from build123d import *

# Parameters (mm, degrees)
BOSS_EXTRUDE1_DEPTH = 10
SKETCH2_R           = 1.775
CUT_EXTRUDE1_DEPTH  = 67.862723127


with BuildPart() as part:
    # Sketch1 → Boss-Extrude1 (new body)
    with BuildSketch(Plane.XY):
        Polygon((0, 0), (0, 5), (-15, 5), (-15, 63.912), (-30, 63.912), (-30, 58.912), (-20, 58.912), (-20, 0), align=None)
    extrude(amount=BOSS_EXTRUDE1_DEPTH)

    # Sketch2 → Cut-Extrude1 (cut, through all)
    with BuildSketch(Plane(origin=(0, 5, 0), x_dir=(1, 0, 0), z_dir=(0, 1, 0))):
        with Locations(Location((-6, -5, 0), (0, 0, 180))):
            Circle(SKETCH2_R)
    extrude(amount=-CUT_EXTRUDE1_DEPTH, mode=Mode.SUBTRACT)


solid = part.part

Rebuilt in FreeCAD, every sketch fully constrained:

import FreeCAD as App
import Part
import Sketcher

V = App.Vector
Q = App.Units.Quantity

doc = App.newDocument("Part")
body = doc.addObject("PartDesign::Body", "Body")

# Sketch on XY plane
sketch1 = body.newObject("Sketcher::SketchObject", "Sketch")
sketch1.AttachmentSupport = (doc.getObject("XY_Plane"), [""])
sketch1.MapMode = "FlatFace"
sketch1.addGeometry(Part.LineSegment(V(0, 0, 0), V(0, 5, 0)), False)
sketch1.addGeometry(Part.LineSegment(V(0, 5, 0), V(-15, 5, 0)), False)
sketch1.addGeometry(Part.LineSegment(V(-15, 5, 0), V(-15, 63.912, 0)), False)
sketch1.addGeometry(Part.LineSegment(V(-15, 63.912, 0), V(-30, 63.912, 0)), False)
sketch1.addGeometry(Part.LineSegment(V(-30, 63.912, 0), V(-30, 58.912, 0)), False)
sketch1.addGeometry(Part.LineSegment(V(-30, 58.912, 0), V(-20, 58.912, 0)), False)
sketch1.addGeometry(Part.LineSegment(V(-20, 58.912, 0), V(-20, 0, 0)), False)
sketch1.addGeometry(Part.LineSegment(V(-20, 0, 0), V(0, 0, 0)), False)
sketch1.addConstraint(Sketcher.Constraint("Coincident", 0, 2, 1, 1))
sketch1.addConstraint(Sketcher.Constraint("Coincident", 1, 2, 2, 1))
sketch1.addConstraint(Sketcher.Constraint("Coincident", 2, 2, 3, 1))
sketch1.addConstraint(Sketcher.Constraint("Coincident", 3, 2, 4, 1))
sketch1.addConstraint(Sketcher.Constraint("Coincident", 4, 2, 5, 1))
sketch1.addConstraint(Sketcher.Constraint("Coincident", 5, 2, 6, 1))
sketch1.addConstraint(Sketcher.Constraint("Coincident", 6, 2, 7, 1))
sketch1.addConstraint(Sketcher.Constraint("Coincident", 7, 2, 0, 1))
sketch1.addConstraint(Sketcher.Constraint("Vertical", 0))
sketch1.addConstraint(Sketcher.Constraint("Horizontal", 1))
sketch1.addConstraint(Sketcher.Constraint("Vertical", 2))
sketch1.addConstraint(Sketcher.Constraint("Horizontal", 3))
sketch1.addConstraint(Sketcher.Constraint("Vertical", 4))
sketch1.addConstraint(Sketcher.Constraint("Horizontal", 5))
sketch1.addConstraint(Sketcher.Constraint("Vertical", 6))
sketch1.addConstraint(Sketcher.Constraint("Horizontal", 7))
sketch1.addConstraint(Sketcher.Constraint("Coincident", 7, 2, -1, 1))
sketch1.addConstraint(Sketcher.Constraint("Equal", 1, 3))
sketch1.addConstraint(Sketcher.Constraint("Equal", 0, 4))
sketch1.addConstraint(Sketcher.Constraint("DistanceX", 1, 2, 1, 1, Q("15 mm")))
sketch1.addConstraint(Sketcher.Constraint("DistanceX", 5, 1, 5, 2, Q("10 mm")))
sketch1.addConstraint(Sketcher.Constraint("DistanceY", 0, 1, 0, 2, Q("5 mm")))
sketch1.addConstraint(Sketcher.Constraint("DistanceY", 2, 1, 2, 2, Q("58.912 mm")))
pad1 = body.newObject("PartDesign::Pad", "Pad")
pad1.Profile = sketch1
pad1.Length = 10

# Sketch on XZ plane
sketch2 = body.newObject("Sketcher::SketchObject", "Sketch001")
sketch2.AttachmentSupport = (doc.getObject("XZ_Plane"), [""])
sketch2.MapMode = "FlatFace"
sketch2.AttachmentOffset = App.Placement(V(0, 0, -5), App.Rotation())
sketch2.addGeometry(Part.Circle(V(-6, 5, 0), V(0, 0, 1), 1.775), False)
sketch2.addConstraint(Sketcher.Constraint("Diameter", 0, Q("3.55 mm")))
sketch2.addConstraint(Sketcher.Constraint("DistanceX", 0, 3, -1, 1, Q("6 mm")))
sketch2.addConstraint(Sketcher.Constraint("DistanceY", -1, 1, 0, 3, Q("5 mm")))
pocket1 = body.newObject("PartDesign::Pocket", "Pocket")
pocket1.Profile = sketch2
pocket1.Type = "ThroughAll"
pocket1.Reversed = True

doc.recompute()
